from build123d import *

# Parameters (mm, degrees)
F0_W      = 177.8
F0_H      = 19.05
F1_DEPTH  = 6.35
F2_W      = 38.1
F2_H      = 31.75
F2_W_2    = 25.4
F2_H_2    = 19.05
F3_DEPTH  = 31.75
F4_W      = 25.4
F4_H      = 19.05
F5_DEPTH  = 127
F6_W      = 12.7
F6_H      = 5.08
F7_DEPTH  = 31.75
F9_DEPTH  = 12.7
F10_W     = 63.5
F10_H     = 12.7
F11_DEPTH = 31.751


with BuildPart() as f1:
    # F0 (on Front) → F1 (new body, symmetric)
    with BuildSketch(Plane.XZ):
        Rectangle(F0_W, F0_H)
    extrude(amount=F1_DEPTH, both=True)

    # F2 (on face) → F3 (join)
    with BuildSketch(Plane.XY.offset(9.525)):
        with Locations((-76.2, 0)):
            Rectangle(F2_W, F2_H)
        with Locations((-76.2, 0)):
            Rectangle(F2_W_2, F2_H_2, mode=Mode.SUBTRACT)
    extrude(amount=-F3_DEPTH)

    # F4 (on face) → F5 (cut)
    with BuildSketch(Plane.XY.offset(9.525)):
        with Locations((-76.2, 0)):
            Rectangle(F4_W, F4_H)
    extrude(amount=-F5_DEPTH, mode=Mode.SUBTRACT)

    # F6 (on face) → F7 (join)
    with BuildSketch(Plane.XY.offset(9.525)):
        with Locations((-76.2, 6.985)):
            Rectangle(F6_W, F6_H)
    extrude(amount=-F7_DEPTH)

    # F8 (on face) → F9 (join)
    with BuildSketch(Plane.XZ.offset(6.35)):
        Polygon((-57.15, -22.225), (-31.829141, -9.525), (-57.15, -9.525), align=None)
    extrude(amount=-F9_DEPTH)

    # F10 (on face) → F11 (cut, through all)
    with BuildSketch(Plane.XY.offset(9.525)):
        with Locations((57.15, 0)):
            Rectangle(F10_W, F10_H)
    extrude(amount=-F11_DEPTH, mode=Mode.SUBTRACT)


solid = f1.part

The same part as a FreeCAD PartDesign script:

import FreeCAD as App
import Part
import Sketcher

V = App.Vector
Q = App.Units.Quantity


def add_polygon(sketch, points):
    """Adds a closed chain of lines whose ends are joined by coincident constraints."""
    first, n = sketch.GeometryCount, len(points)
    for a, b in zip(points, points[1:] + points[:1]):
        sketch.addGeometry(Part.LineSegment(App.Vector(*a, 0), App.Vector(*b, 0)), False)
    for i in range(n):
        sketch.addConstraint(Sketcher.Constraint("Coincident", first + i, 2, first + (i + 1) % n, 1))

doc = App.newDocument("Part")
params = doc.addObject("Spreadsheet::Sheet", "Params")
for row, (alias, value) in enumerate([
    ("sketch1_width", "7 in"),
    ("sketch1_height", "0.75 in"),
    ("pad1_length", "0.5 in"),
    ("sketch2_width", "1 in"),
    ("sketch2_width2", "1.5 in"),
    ("sketch2_height", "1.25 in"),
    ("pad2_length", "1.25 in"),
    ("sketch3_width", "1 in"),
    ("sketch3_height", "0.75 in"),
    ("pocket1_length", "5 in"),
    ("sketch4_width", "0.5 in"),
    ("sketch4_height", "0.2 in"),
    ("pad3_length", "1.25 in"),
    ("sketch5_height", "0.5 in"),
    ("pad4_length", "0.5 in"),
    ("sketch6_width", "2.5 in"),
    ("sketch6_height", "0.5 in"),
], start=1):
    params.set(f"A{row}", alias)
    params.set(f"B{row}", "=" + value)
    params.setAlias(f"B{row}", alias)

body = doc.addObject("PartDesign::Body", "Body")

# Sketch on XZ plane
sketch1 = body.newObject("Sketcher::SketchObject", "Sketch")
sketch1.AttachmentSupport = (doc.getObject("XZ_Plane"), [""])
sketch1.MapMode = "FlatFace"
add_polygon(sketch1, [(-88.9, 9.525), (-88.9, -9.525), (88.9, -9.525), (88.9, 9.525)])  # lines 0-3
sketch1.addConstraint([
    Sketcher.Constraint("Vertical", 0),
    Sketcher.Constraint("Horizontal", 1),
    Sketcher.Constraint("Vertical", 2),
    Sketcher.Constraint("Horizontal", 3),
    Sketcher.Constraint("Symmetric", 0, 2, 2, 2, -1, 1),
    Sketcher.Constraint("DistanceX", 1, 1, 1, 2, Q("7 in")),
    Sketcher.Constraint("DistanceY", 0, 2, 0, 1, Q("0.75 in")),
])
sketch1.setExpression("Constraints[9]", "Params.sketch1_width")
sketch1.setExpression("Constraints[10]", "Params.sketch1_height")
pad1 = body.newObject("PartDesign::Pad", "Pad")
pad1.Profile = sketch1
pad1.setExpression("Length", "Params.pad1_length")
pad1.Midplane = True

# Sketch on XY plane
sketch2 = body.newObject("Sketcher::SketchObject", "Sketch001")
sketch2.AttachmentSupport = (doc.getObject("XY_Plane"), [""])
sketch2.MapMode = "FlatFace"
sketch2.AttachmentOffset = App.Placement(V(0, 0, 0.375 * 25.4), App.Rotation())
add_polygon(sketch2, [(-95.25, 15.875), (-95.25, -15.875), (-57.15, -15.875), (-57.15, 15.875)])  # lines 0-3
add_polygon(sketch2, [(-63.5, -9.525), (-88.9, -9.525), (-88.9, 9.525), (-63.5, 9.525)])  # lines 4-7
sketch2.addConstraint([
    Sketcher.Constraint("Vertical", 0),
    Sketcher.Constraint("Horizontal", 1),
    Sketcher.Constraint("Vertical", 2),
    Sketcher.Constraint("Horizontal", 3),
    Sketcher.Constraint("Horizontal", 4),
    Sketcher.Constraint("Vertical", 5),
    Sketcher.Constraint("Horizontal", 6),
    Sketcher.Constraint("Vertical", 7),
    Sketcher.Constraint("DistanceX", 4, 2, 4, 1, Q("1 in")),
    Sketcher.Constraint("DistanceX", 1, 1, 1, 2, Q("1.5 in")),
    Sketcher.Constraint("DistanceY", 4, 2, 3, 2, Q("1 in")),
    Sketcher.Constraint("DistanceY", 0, 2, 5, 2, Q("1 in")),
    Sketcher.Constraint("DistanceY", 0, 2, 0, 1, Q("1.25 in")),
    Sketcher.Constraint("DistanceX", 4, 2, -1, 1, Q("3.5 in")),
    Sketcher.Constraint("DistanceX", 0, 2, -1, 1, Q("3.75 in")),
    Sketcher.Constraint("DistanceY", 0, 2, -1, 1, Q("0.625 in")),
])
sketch2.setExpression("Constraints[16]", "Params.sketch2_width")
sketch2.setExpression("Constraints[17]", "Params.sketch2_width2")
sketch2.setExpression("Constraints[20]", "Params.sketch2_height")
pad2 = body.newObject("PartDesign::Pad", "Pad001")
pad2.Profile = sketch2
pad2.setExpression("Length", "Params.pad2_length")
pad2.Reversed = True

# Sketch on XY plane
sketch3 = body.newObject("Sketcher::SketchObject", "Sketch002")
sketch3.AttachmentSupport = (doc.getObject("XY_Plane"), [""])
sketch3.MapMode = "FlatFace"
sketch3.AttachmentOffset = App.Placement(V(0, 0, 0.375 * 25.4), App.Rotation())
add_polygon(sketch3, [(-88.9, 9.525), (-88.9, -9.525), (-63.5, -9.525), (-63.5, 9.525)])  # lines 0-3
sketch3.addConstraint([
    Sketcher.Constraint("Vertical", 0),
    Sketcher.Constraint("Horizontal", 1),
    Sketcher.Constraint("Vertical", 2),
    Sketcher.Constraint("Horizontal", 3),
    Sketcher.Constraint("DistanceX", 1, 1, 1, 2, Q("1 in")),
    Sketcher.Constraint("DistanceY", 0, 2, 0, 1, Q("0.75 in")),
    Sketcher.Constraint("DistanceX", 0, 2, -1, 1, Q("3.5 in")),
    Sketcher.Constraint("DistanceY", 0, 2, -1, 1, Q("0.375 in")),
])
sketch3.setExpression("Constraints[8]", "Params.sketch3_width")
sketch3.setExpression("Constraints[9]", "Params.sketch3_height")
pocket1 = body.newObject("PartDesign::Pocket", "Pocket")
pocket1.Profile = sketch3
pocket1.setExpression("Length", "Params.pocket1_length")

# Sketch on XY plane
sketch4 = body.newObject("Sketcher::SketchObject", "Sketch003")
sketch4.AttachmentSupport = (doc.getObject("XY_Plane"), [""])
sketch4.MapMode = "FlatFace"
sketch4.AttachmentOffset = App.Placement(V(0, 0, 0.375 * 25.4), App.Rotation())
add_polygon(sketch4, [(-82.55, 9.525), (-82.55, 4.445), (-69.85, 4.445), (-69.85, 9.525)])  # lines 0-3
sketch4.addConstraint([
    Sketcher.Constraint("Vertical", 0),
    Sketcher.Constraint("Horizontal", 1),
    Sketcher.Constraint("Vertical", 2),
    Sketcher.Constraint("Horizontal", 3),
    Sketcher.Constraint("DistanceX", 1, 1, 1, 2, Q("0.5 in")),
    Sketcher.Constraint("DistanceY", 0, 2, 0, 1, Q("0.2 in")),
    Sketcher.Constraint("DistanceX", 0, 2, -1, 1, Q("3.25 in")),
    Sketcher.Constraint("DistanceY", -1, 1, 0, 2, Q("0.175 in")),
])
sketch4.setExpression("Constraints[8]", "Params.sketch4_width")
sketch4.setExpression("Constraints[9]", "Params.sketch4_height")
pad3 = body.newObject("PartDesign::Pad", "Pad002")
pad3.Profile = sketch4
pad3.setExpression("Length", "Params.pad3_length")
pad3.Reversed = True

# Sketch on XZ plane
sketch5 = body.newObject("Sketcher::SketchObject", "Sketch004")
sketch5.AttachmentSupport = (doc.getObject("XZ_Plane"), [""])
sketch5.MapMode = "FlatFace"
sketch5.AttachmentOffset = App.Placement(V(0, 0, 0.25 * 25.4), App.Rotation())
add_polygon(sketch5, [(-57.15, -22.225), (-31.829141, -9.525), (-57.15, -9.525)])  # lines 0-2
sketch5.addConstraint([
    Sketcher.Constraint("Horizontal", 1),
    Sketcher.Constraint("Vertical", 2),
    Sketcher.Constraint("DistanceY", 2, 2, 2, 1, Q("0.5 in")),
    Sketcher.Constraint("DistanceX", 1, 2, -1, 1, Q("2.25 in")),
    Sketcher.Constraint("DistanceY", 0, 2, -1, 1, Q("0.375 in")),
    Sketcher.Constraint("Distance", 0, 28.3273),
])
sketch5.setExpression("Constraints[5]", "Params.sketch5_height")
pad4 = body.newObject("PartDesign::Pad", "Pad003")
pad4.Profile = sketch5
pad4.setExpression("Length", "Params.pad4_length")
pad4.Reversed = True

# Sketch on XY plane
sketch6 = body.newObject("Sketcher::SketchObject", "Sketch005")
sketch6.AttachmentSupport = (doc.getObject("XY_Plane"), [""])
sketch6.MapMode = "FlatFace"
sketch6.AttachmentOffset = App.Placement(V(0, 0, 0.375 * 25.4), App.Rotation())
add_polygon(sketch6, [(25.4, 6.35), (25.4, -6.35), (88.9, -6.35), (88.9, 6.35)])  # lines 0-3
sketch6.addConstraint([
    Sketcher.Constraint("Vertical", 0),
    Sketcher.Constraint("Horizontal", 1),
    Sketcher.Constraint("Vertical", 2),
    Sketcher.Constraint("Horizontal", 3),
    Sketcher.Constraint("DistanceX", 1, 1, 1, 2, Q("2.5 in")),
    Sketcher.Constraint("DistanceY", 0, 2, 0, 1, Q("0.5 in")),
    Sketcher.Constraint("DistanceX", -1, 1, 0, 2, Q("1 in")),
    Sketcher.Constraint("DistanceY", 0, 2, -1, 1, Q("0.25 in")),
])
sketch6.setExpression("Constraints[8]", "Params.sketch6_width")
sketch6.setExpression("Constraints[9]", "Params.sketch6_height")
pocket2 = body.newObject("PartDesign::Pocket", "Pocket001")
pocket2.Profile = sketch6
pocket2.Type = "ThroughAll"

doc.recompute()
